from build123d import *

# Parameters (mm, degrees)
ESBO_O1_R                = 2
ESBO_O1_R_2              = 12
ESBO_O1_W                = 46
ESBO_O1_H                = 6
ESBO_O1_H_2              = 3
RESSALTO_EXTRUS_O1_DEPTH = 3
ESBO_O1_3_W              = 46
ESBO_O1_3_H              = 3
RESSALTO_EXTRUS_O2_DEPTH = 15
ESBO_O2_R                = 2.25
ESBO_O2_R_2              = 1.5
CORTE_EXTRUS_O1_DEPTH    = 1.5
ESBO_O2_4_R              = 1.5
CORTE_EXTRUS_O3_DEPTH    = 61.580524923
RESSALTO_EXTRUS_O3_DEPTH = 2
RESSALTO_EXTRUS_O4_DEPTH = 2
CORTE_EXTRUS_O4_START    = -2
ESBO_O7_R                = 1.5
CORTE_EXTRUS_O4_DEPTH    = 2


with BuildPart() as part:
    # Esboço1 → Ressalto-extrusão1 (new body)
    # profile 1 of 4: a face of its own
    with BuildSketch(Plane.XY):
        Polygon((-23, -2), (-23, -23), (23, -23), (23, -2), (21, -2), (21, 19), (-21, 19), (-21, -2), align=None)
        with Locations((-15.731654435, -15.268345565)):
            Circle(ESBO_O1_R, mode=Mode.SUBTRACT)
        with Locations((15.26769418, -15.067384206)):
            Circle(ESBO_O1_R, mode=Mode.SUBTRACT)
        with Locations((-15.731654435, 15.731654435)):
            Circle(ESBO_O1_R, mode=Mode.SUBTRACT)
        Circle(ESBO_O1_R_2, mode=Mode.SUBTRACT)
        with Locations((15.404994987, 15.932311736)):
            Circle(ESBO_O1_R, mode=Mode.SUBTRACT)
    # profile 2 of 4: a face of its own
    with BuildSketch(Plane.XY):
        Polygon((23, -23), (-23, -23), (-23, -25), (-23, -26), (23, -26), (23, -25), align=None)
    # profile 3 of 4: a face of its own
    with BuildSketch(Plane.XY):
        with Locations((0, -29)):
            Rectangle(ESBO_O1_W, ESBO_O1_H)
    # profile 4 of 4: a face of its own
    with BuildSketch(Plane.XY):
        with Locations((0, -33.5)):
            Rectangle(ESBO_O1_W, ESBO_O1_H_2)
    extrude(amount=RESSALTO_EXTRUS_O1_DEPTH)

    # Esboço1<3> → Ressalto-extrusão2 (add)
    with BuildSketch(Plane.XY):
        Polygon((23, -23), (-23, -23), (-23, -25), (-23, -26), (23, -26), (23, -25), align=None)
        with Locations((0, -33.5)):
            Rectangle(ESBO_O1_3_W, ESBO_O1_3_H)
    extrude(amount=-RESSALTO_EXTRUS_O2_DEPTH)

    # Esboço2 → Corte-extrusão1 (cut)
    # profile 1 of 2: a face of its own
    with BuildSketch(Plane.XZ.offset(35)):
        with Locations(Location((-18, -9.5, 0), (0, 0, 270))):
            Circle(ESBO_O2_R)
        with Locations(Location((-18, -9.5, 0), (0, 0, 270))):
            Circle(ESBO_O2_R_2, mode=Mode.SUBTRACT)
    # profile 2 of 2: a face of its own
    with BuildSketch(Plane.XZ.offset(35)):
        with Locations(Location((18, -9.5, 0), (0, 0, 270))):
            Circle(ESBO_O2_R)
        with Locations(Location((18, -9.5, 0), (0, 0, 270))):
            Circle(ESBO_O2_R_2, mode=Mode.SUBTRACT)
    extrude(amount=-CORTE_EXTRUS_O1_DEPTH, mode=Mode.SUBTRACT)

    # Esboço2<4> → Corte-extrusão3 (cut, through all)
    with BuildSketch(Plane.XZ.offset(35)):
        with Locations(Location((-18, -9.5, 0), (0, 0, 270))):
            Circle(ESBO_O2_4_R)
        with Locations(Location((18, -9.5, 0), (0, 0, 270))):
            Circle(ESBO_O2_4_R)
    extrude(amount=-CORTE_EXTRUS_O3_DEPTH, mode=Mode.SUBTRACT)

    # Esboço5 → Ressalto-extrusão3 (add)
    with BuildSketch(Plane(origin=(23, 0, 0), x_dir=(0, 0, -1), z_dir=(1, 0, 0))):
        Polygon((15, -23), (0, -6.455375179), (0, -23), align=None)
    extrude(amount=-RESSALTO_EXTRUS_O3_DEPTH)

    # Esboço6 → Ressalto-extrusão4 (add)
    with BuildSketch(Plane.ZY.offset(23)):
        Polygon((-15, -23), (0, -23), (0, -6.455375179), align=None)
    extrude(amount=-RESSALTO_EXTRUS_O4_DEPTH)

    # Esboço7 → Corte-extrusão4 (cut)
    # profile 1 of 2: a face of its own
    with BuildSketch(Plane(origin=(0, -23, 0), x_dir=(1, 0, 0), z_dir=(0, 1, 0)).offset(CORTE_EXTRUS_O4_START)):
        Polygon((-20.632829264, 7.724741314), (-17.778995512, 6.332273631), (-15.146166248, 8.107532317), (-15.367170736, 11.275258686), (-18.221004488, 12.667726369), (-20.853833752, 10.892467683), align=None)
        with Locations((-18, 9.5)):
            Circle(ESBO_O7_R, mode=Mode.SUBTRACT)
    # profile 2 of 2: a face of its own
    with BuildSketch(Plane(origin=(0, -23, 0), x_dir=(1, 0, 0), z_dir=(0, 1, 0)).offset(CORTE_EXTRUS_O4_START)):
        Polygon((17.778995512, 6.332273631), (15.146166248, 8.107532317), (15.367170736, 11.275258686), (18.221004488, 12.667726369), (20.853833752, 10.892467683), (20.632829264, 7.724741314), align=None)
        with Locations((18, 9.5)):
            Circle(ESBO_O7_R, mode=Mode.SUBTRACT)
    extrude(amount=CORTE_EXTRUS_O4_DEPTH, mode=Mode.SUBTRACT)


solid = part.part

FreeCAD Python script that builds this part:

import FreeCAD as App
import Part
import Sketcher


def add_polygon(sketch, points):
    """Adds a closed chain of lines whose ends are joined by coincident constraints."""
    first, n = sketch.GeometryCount, len(points)
    for a, b in zip(points, points[1:] + points[:1]):
        sketch.addGeometry(Part.LineSegment(App.Vector(*a, 0), App.Vector(*b, 0)), False)
    for i in range(n):
        sketch.addConstraint(Sketcher.Constraint("Coincident", first + i, 2, first + (i + 1) % n, 1))

doc = App.newDocument("Part")
params = doc.addObject("Spreadsheet::Sheet", "Params")
for row, (alias, value) in enumerate([
    ("sketch1_diameter", "4 mm"),
    ("sketch1_diameter2", "24 mm"),
    ("sketch1_width", "46 mm"),
    ("sketch1_width2", "2 mm"),
    ("sketch1_height", "33 mm"),
    ("pad1_length", "3 mm"),
    ("sketch2_width", "46 mm"),
    ("sketch2_height", "3 mm"),
    ("pad2_length", "15 mm"),
    ("sketch3_diameter", "3 mm"),
    ("sketch3_diameter2", "4.5 mm"),
    ("pocket1_length", "1.5 mm"),
    ("sketch4_diameter", "3 mm"),
    ("sketch5_height", "15 mm"),
    ("pad3_length", "2 mm"),
    ("sketch6_height", "15 mm"),
    ("pad4_length", "2 mm"),
    ("sketch7_diameter", "3 mm"),
    ("pocket3_length", "2 mm"),
], start=1):
    params.set(f"A{row}", alias)
    params.set(f"B{row}", "=" + value)
    params.setAlias(f"B{row}", alias)

body = doc.addObject("PartDesign::Body", "Body")

sketch1 = doc.addObject("Sketcher::SketchObject", "Sketch")
body.addObject(sketch1)
sketch1.AttachmentSupport = (doc.XY_Plane, [""])
sketch1.MapMode = "FlatFace"
add_polygon(sketch1, [(-23, -2), (-23, -35), (23, -35), (23, -2), (21, -2), (21, 19), (-21, 19), (-21, -2)])
sketch1.addGeometry(Part.Circle(App.Vector(-15.731654, -15.268346, 0), App.Vector(0, 0, 1), 2), False)
sketch1.addGeometry(Part.Circle(App.Vector(15.267694, -15.067384, 0), App.Vector(0, 0, 1), 2), False)
sketch1.addGeometry(Part.Circle(App.Vector(0, 0, 0), App.Vector(0, 0, 1), 12), False)
sketch1.addGeometry(Part.Circle(App.Vector(-15.731654, 15.731654, 0), App.Vector(0, 0, 1), 2), False)
sketch1.addGeometry(Part.Circle(App.Vector(15.404995, 15.932312, 0), App.Vector(0, 0, 1), 2), False)
sketch1.addConstraint([
    Sketcher.Constraint("Vertical", 0),
    Sketcher.Constraint("Horizontal", 1),
    Sketcher.Constraint("Vertical", 2),
    Sketcher.Constraint("Horizontal", 3),
    Sketcher.Constraint("Vertical", 4),
    Sketcher.Constraint("Horizontal", 5),
    Sketcher.Constraint("Vertical", 6),
    Sketcher.Constraint("Horizontal", 7),
    Sketcher.Constraint("Coincident", 10, 3, -1, 1),
    Sketcher.Constraint("Equal", 8, 9),
    Sketcher.Constraint("Equal", 9, 11),
    Sketcher.Constraint("Equal", 11, 12),
    Sketcher.Constraint("Symmetric", 3, 2, 6, 2, -2),
    Sketcher.Constraint("Vertical", 8, 3, 11, 3),
    Sketcher.Constraint("Equal", 3, 7),
    Sketcher.Constraint("Diameter", 8, 4.0),
    Sketcher.Constraint("Diameter", 10, 24.0),
    Sketcher.Constraint("DistanceX", 1, 1, 1, 2, 46.0),
    Sketcher.Constraint("DistanceX", 3, 2, 3, 1, 2.0),
    Sketcher.Constraint("DistanceY", 0, 2, 0, 1, 33.0),
    Sketcher.Constraint("DistanceY", 4, 1, 4, 2, 21.0),
    Sketcher.Constraint("DistanceY", 0, 2, -1, 1, 35.0),
    Sketcher.Constraint("DistanceY", 8, 3, 11, 3, 31.0),
    Sketcher.Constraint("DistanceX", 9, 3, 12, 3, 0.137301),
    Sketcher.Constraint("DistanceY", -1, 1, 12, 3, 15.932312),
    Sketcher.Constraint("DistanceX", 8, 3, 9, 3, 30.999349),
    Sketcher.Constraint("DistanceY", 8, 3, 9, 3, 0.200961),
    Sketcher.Constraint("DistanceX", 8, 3, -1, 1, 15.731654),
    Sketcher.Constraint("DistanceY", 8, 3, -1, 1, 15.268346),
])
sketch1.setExpression("Constraints[23]", "Params.sketch1_diameter")
sketch1.setExpression("Constraints[24]", "Params.sketch1_diameter2")
sketch1.setExpression("Constraints[25]", "Params.sketch1_width")
sketch1.setExpression("Constraints[26]", "Params.sketch1_width2")
sketch1.setExpression("Constraints[27]", "Params.sketch1_height")
pad1 = doc.addObject("PartDesign::Pad", "Pad")
body.addObject(pad1)
pad1.Profile = sketch1
pad1.setExpression("Length", "Params.pad1_length")

sketch2 = doc.addObject("Sketcher::SketchObject", "Sketch001")
body.addObject(sketch2)
sketch2.AttachmentSupport = (doc.XY_Plane, [""])
sketch2.MapMode = "FlatFace"
add_polygon(sketch2, [(23, -23), (-23, -23), (-23, -26), (23, -26)])
add_polygon(sketch2, [(-23, -32), (-23, -35), (23, -35), (23, -32)])
sketch2.addConstraint([
    Sketcher.Constraint("Horizontal", 0),
    Sketcher.Constraint("Vertical", 1),
    Sketcher.Constraint("Horizontal", 2),
    Sketcher.Constraint("Vertical", 3),
    Sketcher.Constraint("Vertical", 4),
    Sketcher.Constraint("Horizontal", 5),
    Sketcher.Constraint("Vertical", 6),
    Sketcher.Constraint("Horizontal", 7),
    Sketcher.Constraint("Vertical", 1, 2, 4, 2),
    Sketcher.Constraint("Vertical", 3, 2, 5, 2),
    Sketcher.Constraint("Equal", 3, 4),
    Sketcher.Constraint("DistanceX", 0, 2, 0, 1, 46.0),
    Sketcher.Constraint("DistanceY", 1, 2, 1, 1, 3.0),
    Sketcher.Constraint("DistanceX", 0, 2, -1, 1, 23.0),
    Sketcher.Constraint("DistanceY", 0, 2, -1, 1, 23.0),
    Sketcher.Constraint("DistanceY", 4, 2, -1, 1, 35.0),
])
sketch2.setExpression("Constraints[19]", "Params.sketch2_width")
sketch2.setExpression("Constraints[20]", "Params.sketch2_height")
pad2 = doc.addObject("PartDesign::Pad", "Pad001")
body.addObject(pad2)
pad2.Profile = sketch2
pad2.setExpression("Length", "Params.pad2_length")
pad2.Reversed = True

sketch3 = doc.addObject("Sketcher::SketchObject", "Sketch002")
body.addObject(sketch3)
sketch3.AttachmentSupport = (doc.XZ_Plane, [""])
sketch3.MapMode = "FlatFace"
sketch3.AttachmentOffset = App.Placement(App.Vector(0, 0, 35), App.Rotation())
sketch3.addGeometry([
    Part.Circle(App.Vector(-18, -9.5, 0), App.Vector(0, 0, 1), 2.25),
    Part.Circle(App.Vector(-18, -9.5, 0), App.Vector(0, 0, 1), 1.5),
    Part.Circle(App.Vector(18, -9.5, 0), App.Vector(0, 0, 1), 2.25),
    Part.Circle(App.Vector(18, -9.5, 0), App.Vector(0, 0, 1), 1.5),
], False)
sketch3.addConstraint([
    Sketcher.Constraint("Coincident", 1, 3, 0, 3),
    Sketcher.Constraint("Coincident", 3, 3, 2, 3),
    Sketcher.Constraint("Equal", 0, 2),
    Sketcher.Constraint("Equal", 1, 3),
    Sketcher.Constraint("Symmetric", 0, 3, 2, 3, -2),
    Sketcher.Constraint("Diameter", 1, 3.0),
    Sketcher.Constraint("Diameter", 0, 4.5),
    Sketcher.Constraint("DistanceX", 0, 3, -1, 1, 18.0),
    Sketcher.Constraint("DistanceY", 0, 3, -1, 1, 9.5),
])
sketch3.setExpression("Constraints[5]", "Params.sketch3_diameter")
sketch3.setExpression("Constraints[6]", "Params.sketch3_diameter2")
pocket1 = doc.addObject("PartDesign::Pocket", "Pocket")
body.addObject(pocket1)
pocket1.Profile = sketch3
pocket1.setExpression("Length", "Params.pocket1_length")

sketch4 = doc.addObject("Sketcher::SketchObject", "Sketch003")
body.addObject(sketch4)
sketch4.AttachmentSupport = (doc.XZ_Plane, [""])
sketch4.MapMode = "FlatFace"
sketch4.AttachmentOffset = App.Placement(App.Vector(0, 0, 35), App.Rotation())
sketch4.addGeometry([
    Part.Circle(App.Vector(-18, -9.5, 0), App.Vector(0, 0, 1), 1.5),
    Part.Circle(App.Vector(18, -9.5, 0), App.Vector(0, 0, 1), 1.5),
], False)
sketch4.addConstraint([
    Sketcher.Constraint("Equal", 0, 1),
    Sketcher.Constraint("Symmetric", 0, 3, 1, 3, -2),
    Sketcher.Constraint("Diameter", 0, 3.0),
    Sketcher.Constraint("DistanceX", 0, 3, -1, 1, 18.0),
    Sketcher.Constraint("DistanceY", 0, 3, -1, 1, 9.5),
])
sketch4.setExpression("Constraints[2]", "Params.sketch4_diameter")
pocket2 = doc.addObject("PartDesign::Pocket", "Pocket001")
body.addObject(pocket2)
pocket2.Profile = sketch4
pocket2.Type = "ThroughAll"

sketch5 = doc.addObject("Sketcher::SketchObject", "Sketch004")
body.addObject(sketch5)
sketch5.AttachmentSupport = (doc.YZ_Plane, [""])
sketch5.MapMode = "FlatFace"
sketch5.AttachmentOffset = App.Placement(App.Vector(0, 0, 23), App.Rotation())
add_polygon(sketch5, [(-23, -15), (-6.455375, 0), (-23, 0)])
sketch5.addConstraint([
    Sketcher.Constraint("Horizontal", 1),
    Sketcher.Constraint("Vertical", 2),
    Sketcher.Constraint("PointOnObject", 0, 2, -1),
    Sketcher.Constraint("DistanceY", 2, 2, 2, 1, 15.0),
    Sketcher.Constraint("DistanceX", 1, 2, -1, 1, 23.0),
    Sketcher.Constraint("DistanceX", 1, 2, 1, 1, 16.544625),
])
sketch5.setExpression("Constraints[6]", "Params.sketch5_height")
pad3 = doc.addObject("PartDesign::Pad", "Pad002")
body.addObject(pad3)
pad3.Profile = sketch5
pad3.setExpression("Length", "Params.pad3_length")
pad3.Reversed = True

sketch6 = doc.addObject("Sketcher::SketchObject", "Sketch005")
body.addObject(sketch6)
sketch6.AttachmentSupport = (doc.YZ_Plane, [""])
sketch6.MapMode = "FlatFace"
sketch6.AttachmentOffset = App.Placement(App.Vector(0, 0, -23), App.Rotation())
add_polygon(sketch6, [(-23, -15), (-23, 0), (-6.455375, 0)])
sketch6.addConstraint([
    Sketcher.Constraint("Vertical", 0),
    Sketcher.Constraint("Horizontal", 1),
    Sketcher.Constraint("PointOnObject", 0, 2, -1),
    Sketcher.Constraint("DistanceY", 0, 1, 0, 2, 15.0),
    Sketcher.Constraint("DistanceX", 0, 2, -1, 1, 23.0),
    Sketcher.Constraint("DistanceX", 1, 1, 1, 2, 16.544625),
])
sketch6.setExpression("Constraints[6]", "Params.sketch6_height")
pad4 = doc.addObject("PartDesign::Pad", "Pad003")
body.addObject(pad4)
pad4.Profile = sketch6
pad4.setExpression("Length", "Params.pad4_length")

sketch7 = doc.addObject("Sketcher::SketchObject", "Sketch006")
body.addObject(sketch7)
sketch7.AttachmentSupport = (doc.XZ_Plane, [""])
sketch7.MapMode = "FlatFace"
sketch7.AttachmentOffset = App.Placement(App.Vector(0, 0, 25), App.Rotation())
add_polygon(sketch7, [(-20.632829, -7.724741), (-17.778996, -6.332274), (-15.146166, -8.107532), (-15.367171, -11.275259), (-18.221004, -12.667726), (-20.853834, -10.892468)])
sketch7.addGeometry(Part.Circle(App.Vector(-18, -9.5, 0), App.Vector(0, 0, 1), 1.5), False)
add_polygon(sketch7, [(15.146166, -8.107532), (17.778996, -6.332274), (20.632829, -7.724741), (20.853834, -10.892468), (18.221004, -12.667726), (15.367171, -11.275259)])
sketch7.addGeometry(Part.Circle(App.Vector(18, -9.5, 0), App.Vector(0, 0, 1), 1.5), False)
sketch7.addConstraint([
    Sketcher.Constraint("Equal", 6, 13),
    Sketcher.Constraint("Symmetric", 6, 3, 13, 3, -2),
    Sketcher.Constraint("Symmetric", 0, 2, 7, 2, -2),
    Sketcher.Constraint("Symmetric", 5, 2, 8, 2, -2),
    Sketcher.Constraint("Symmetric", 4, 2, 9, 2, -2),
    Sketcher.Constraint("Symmetric", 3, 2, 10, 2, -2),
    Sketcher.Constraint("Symmetric", 2, 2, 11, 2, -2),
    Sketcher.Constraint("Symmetric", 1, 2, 12, 2, -2),
    Sketcher.Constraint("Parallel", 0, 3),
    Sketcher.Constraint("Parallel", 1, 4),
    Sketcher.Constraint("Parallel", 2, 5),
    Sketcher.Constraint("Equal", 0, 1),
    Sketcher.Constraint("Equal", 1, 2),
    Sketcher.Constraint("Equal", 2, 3),
    Sketcher.Constraint("Diameter", 6, 3.0),
    Sketcher.Constraint("DistanceX", 6, 3, -1, 1, 18.0),
    Sketcher.Constraint("DistanceX", 2, 2, 8, 2, 36.0),
    Sketcher.Constraint("DistanceY", 6, 3, -1, 1, 9.5),
    Sketcher.Constraint("DistanceX", 2, 2, -1, 1, 15.367171),
    Sketcher.Constraint("DistanceY", 2, 2, -1, 1, 11.275259),
    Sketcher.Constraint("DistanceY", 5, 2, -1, 1, 7.724741),
    Sketcher.Constraint("DistanceX", 0, 2, 1, 2, 2.632829),
    Sketcher.Constraint("DistanceY", 1, 2, 0, 2, 1.775259),
])
sketch7.setExpression("Constraints[26]", "Params.sketch7_diameter")
pocket3 = doc.addObject("PartDesign::Pocket", "Pocket002")
body.addObject(pocket3)
pocket3.Profile = sketch7
pocket3.setExpression("Length", "Params.pocket3_length")

doc.recompute()
